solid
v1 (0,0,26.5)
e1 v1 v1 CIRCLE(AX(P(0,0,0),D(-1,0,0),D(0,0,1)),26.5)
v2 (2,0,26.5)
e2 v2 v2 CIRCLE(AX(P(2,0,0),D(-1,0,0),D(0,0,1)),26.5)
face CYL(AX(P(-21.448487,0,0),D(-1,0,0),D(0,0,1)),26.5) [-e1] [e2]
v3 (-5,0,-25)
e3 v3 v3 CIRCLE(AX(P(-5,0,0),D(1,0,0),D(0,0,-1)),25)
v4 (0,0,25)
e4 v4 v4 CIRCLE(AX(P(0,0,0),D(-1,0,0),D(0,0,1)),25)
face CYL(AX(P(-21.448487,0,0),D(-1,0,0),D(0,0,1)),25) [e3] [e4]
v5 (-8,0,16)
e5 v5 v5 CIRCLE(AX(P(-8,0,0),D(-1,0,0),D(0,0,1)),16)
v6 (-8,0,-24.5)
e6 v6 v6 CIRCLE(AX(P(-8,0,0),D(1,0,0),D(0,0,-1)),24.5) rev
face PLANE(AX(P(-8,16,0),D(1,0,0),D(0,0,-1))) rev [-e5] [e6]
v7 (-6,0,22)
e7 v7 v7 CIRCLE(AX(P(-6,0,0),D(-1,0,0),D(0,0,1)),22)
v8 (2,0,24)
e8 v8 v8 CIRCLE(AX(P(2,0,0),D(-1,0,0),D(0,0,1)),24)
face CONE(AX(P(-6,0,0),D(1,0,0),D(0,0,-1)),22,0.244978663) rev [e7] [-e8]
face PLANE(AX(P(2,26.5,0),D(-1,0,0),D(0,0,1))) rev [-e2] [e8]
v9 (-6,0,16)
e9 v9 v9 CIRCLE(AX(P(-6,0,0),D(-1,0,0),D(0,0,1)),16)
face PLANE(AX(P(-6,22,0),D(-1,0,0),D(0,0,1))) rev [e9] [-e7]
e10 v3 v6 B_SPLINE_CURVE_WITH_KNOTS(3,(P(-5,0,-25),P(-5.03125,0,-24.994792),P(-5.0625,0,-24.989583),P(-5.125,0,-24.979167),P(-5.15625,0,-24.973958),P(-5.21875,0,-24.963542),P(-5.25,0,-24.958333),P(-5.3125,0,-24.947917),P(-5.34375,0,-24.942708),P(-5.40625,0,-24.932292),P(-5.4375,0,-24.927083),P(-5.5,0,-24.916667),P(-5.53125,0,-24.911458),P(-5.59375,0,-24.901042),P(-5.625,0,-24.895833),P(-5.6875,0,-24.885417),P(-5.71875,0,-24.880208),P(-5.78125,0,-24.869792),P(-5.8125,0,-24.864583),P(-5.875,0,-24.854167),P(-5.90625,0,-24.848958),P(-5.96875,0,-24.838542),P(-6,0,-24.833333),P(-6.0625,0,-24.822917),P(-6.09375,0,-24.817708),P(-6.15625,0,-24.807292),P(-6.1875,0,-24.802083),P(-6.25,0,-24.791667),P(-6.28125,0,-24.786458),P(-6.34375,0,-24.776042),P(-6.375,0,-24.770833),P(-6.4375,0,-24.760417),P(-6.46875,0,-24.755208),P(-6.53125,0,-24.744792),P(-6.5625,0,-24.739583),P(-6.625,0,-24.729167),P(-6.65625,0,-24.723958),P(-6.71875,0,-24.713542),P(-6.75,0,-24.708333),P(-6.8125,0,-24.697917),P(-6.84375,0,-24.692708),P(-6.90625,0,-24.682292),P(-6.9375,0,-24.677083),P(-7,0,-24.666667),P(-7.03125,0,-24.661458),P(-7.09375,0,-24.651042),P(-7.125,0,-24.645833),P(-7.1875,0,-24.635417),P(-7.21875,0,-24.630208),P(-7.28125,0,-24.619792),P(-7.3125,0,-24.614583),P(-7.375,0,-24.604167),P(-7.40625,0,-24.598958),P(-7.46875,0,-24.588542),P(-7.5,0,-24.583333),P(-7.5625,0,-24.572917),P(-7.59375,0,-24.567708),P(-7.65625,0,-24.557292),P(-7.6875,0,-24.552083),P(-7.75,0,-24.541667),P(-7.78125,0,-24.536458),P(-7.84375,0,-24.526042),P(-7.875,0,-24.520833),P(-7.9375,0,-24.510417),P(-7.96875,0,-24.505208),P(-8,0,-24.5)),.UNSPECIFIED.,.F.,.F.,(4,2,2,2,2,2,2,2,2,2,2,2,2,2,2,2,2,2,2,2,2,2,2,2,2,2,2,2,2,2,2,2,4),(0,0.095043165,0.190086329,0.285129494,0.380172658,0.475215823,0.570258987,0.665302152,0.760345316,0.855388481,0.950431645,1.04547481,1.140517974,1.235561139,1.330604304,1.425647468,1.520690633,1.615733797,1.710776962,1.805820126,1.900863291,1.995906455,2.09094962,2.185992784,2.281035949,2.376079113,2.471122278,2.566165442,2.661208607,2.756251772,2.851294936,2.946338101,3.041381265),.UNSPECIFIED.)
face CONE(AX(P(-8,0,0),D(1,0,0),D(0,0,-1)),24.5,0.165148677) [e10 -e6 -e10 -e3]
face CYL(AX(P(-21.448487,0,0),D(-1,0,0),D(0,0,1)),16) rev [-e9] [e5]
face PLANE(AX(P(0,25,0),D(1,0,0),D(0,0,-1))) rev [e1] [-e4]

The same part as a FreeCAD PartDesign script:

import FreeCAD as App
import Part
import Sketcher

V = App.Vector


def edges_at(feature, points):
    """Names of the edges that pass closest to the given points."""
    edges = feature.Shape.Edges
    near = lambda p: min(range(len(edges)), key=lambda i: edges[i].distToShape(Part.Vertex(*p))[0])
    return sorted({f"Edge{near(p) + 1}" for p in points})


def add_polygon(sketch, points):
    """Adds a closed chain of lines whose ends are joined by coincident constraints."""
    first, n = sketch.GeometryCount, len(points)
    for a, b in zip(points, points[1:] + points[:1]):
        sketch.addGeometry(Part.LineSegment(App.Vector(*a, 0), App.Vector(*b, 0)), False)
    for i in range(n):
        sketch.addConstraint(Sketcher.Constraint("Coincident", first + i, 2, first + (i + 1) % n, 1))

doc = App.newDocument("Part")
body = doc.addObject("PartDesign::Body", "Body")

sketch1 = doc.addObject("Sketcher::SketchObject", "Sketch")
body.addObject(sketch1)
sketch1.AttachmentSupport = (doc.XY_Plane, [""])
sketch1.MapMode = "FlatFace"
add_polygon(sketch1, [(2, 26.5), (0, 26.5), (0, 25), (-8, 25), (-8, 16), (-6, 16), (-6, 22), (2, 24)])
sketch1.addConstraint([
    Sketcher.Constraint("Horizontal", 0),
    Sketcher.Constraint("Vertical", 1),
    Sketcher.Constraint("Horizontal", 2),
    Sketcher.Constraint("Vertical", 3),
    Sketcher.Constraint("Horizontal", 4),
    Sketcher.Constraint("Vertical", 5),
    Sketcher.Constraint("Vertical", 7),
    Sketcher.Constraint("PointOnObject", 0, 2, -2),
    Sketcher.Constraint("Equal", 0, 4),
    Sketcher.Constraint("DistanceX", 0, 2, 0, 1, 2.0),
    Sketcher.Constraint("DistanceX", 2, 2, 2, 1, 8.0),
    Sketcher.Constraint("DistanceY", 3, 2, 3, 1, 9.0),
    Sketcher.Constraint("DistanceY", 5, 1, 5, 2, 6.0),
    Sketcher.Constraint("DistanceY", 1, 2, 1, 1, 1.5),
    Sketcher.Constraint("DistanceY", 7, 1, 7, 2, 2.5),
    Sketcher.Constraint("DistanceY", -1, 1, 1, 2, 25.0),
])
revolution = doc.addObject("PartDesign::Revolution", "Revolution")
body.addObject(revolution)
revolution.Profile = sketch1
revolution.ReferenceAxis = (sketch1, ["H_Axis"])
revolution.Angle = 360
doc.recompute()

chamfer = doc.addObject("PartDesign::Chamfer", "Chamfer")
body.addObject(chamfer)
chamfer.Base = (revolution, edges_at(revolution, [(-8, 0, -25)]))
chamfer.ChamferType = "Two distances"
chamfer.Size = 3
chamfer.Size2 = 0.5

doc.recompute()
